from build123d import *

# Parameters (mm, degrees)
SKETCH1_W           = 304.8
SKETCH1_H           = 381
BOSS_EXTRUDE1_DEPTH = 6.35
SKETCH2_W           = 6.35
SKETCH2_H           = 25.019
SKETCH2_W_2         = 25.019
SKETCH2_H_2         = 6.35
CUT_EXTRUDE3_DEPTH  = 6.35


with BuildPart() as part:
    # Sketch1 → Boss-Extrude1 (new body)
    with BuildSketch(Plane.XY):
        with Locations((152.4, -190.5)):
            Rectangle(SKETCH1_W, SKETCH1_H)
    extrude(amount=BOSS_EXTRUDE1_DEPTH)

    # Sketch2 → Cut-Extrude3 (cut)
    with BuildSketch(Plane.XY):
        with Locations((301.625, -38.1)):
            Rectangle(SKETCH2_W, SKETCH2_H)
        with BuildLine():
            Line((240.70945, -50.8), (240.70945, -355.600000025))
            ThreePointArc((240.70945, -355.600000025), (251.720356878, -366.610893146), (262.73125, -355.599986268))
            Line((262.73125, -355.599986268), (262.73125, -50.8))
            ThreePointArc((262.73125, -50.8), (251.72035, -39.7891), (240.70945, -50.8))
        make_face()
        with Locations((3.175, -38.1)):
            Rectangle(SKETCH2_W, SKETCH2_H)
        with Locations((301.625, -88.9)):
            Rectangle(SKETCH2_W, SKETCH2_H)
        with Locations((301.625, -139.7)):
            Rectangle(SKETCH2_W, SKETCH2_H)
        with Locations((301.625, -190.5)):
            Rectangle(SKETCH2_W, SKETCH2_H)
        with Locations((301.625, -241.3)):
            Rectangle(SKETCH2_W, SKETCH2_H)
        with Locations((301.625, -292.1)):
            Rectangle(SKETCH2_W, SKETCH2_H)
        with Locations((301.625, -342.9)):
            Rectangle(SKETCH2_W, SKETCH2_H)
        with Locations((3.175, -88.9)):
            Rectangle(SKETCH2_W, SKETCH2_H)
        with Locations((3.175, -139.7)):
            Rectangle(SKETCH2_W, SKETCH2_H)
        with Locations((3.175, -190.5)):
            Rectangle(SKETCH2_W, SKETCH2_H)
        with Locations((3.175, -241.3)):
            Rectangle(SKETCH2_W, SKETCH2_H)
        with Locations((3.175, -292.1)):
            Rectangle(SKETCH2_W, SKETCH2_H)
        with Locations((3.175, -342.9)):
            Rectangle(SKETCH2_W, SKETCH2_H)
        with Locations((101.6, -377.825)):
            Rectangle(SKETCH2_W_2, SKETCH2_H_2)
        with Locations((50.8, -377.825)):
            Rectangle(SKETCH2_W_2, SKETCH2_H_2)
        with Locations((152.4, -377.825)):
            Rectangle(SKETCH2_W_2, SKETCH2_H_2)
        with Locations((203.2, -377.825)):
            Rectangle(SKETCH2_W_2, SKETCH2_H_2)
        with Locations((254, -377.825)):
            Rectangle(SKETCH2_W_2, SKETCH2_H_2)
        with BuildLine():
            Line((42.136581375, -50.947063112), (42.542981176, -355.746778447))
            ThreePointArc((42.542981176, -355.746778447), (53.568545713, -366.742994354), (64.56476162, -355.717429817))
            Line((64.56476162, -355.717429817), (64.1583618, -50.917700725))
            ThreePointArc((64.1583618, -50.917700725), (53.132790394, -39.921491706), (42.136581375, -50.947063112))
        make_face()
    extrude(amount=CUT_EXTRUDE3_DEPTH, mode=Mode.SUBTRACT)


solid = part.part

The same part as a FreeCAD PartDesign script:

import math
import FreeCAD as App
import Part
import Sketcher
from FreeCAD import Vector
Q = App.Units.Quantity

doc = App.newDocument("Part")
body = doc.addObject("PartDesign::Body", "Body")

sketch1 = doc.addObject("Sketcher::SketchObject", "Sketch")
body.addObject(sketch1)
sketch1.AttachmentSupport = (doc.XY_Plane, [""])
sketch1.MapMode = "FlatFace"
sketch1.addGeometry([
    Part.LineSegment(Vector(0, 0, 0), Vector(0, -381, 0)),
    Part.LineSegment(Vector(0, -381, 0), Vector(305, -381, 0)),
    Part.LineSegment(Vector(305, -381, 0), Vector(305, 0, 0)),
    Part.LineSegment(Vector(305, 0, 0), Vector(0, 0, 0)),
], False)
sketch1.addConstraint([
    Sketcher.Constraint("Coincident", 0, 2, 1, 1),
    Sketcher.Constraint("Coincident", 1, 2, 2, 1),
    Sketcher.Constraint("Coincident", 2, 2, 3, 1),
    Sketcher.Constraint("Coincident", 3, 2, 0, 1),
    Sketcher.Constraint("Vertical", 0),
    Sketcher.Constraint("Horizontal", 1),
    Sketcher.Constraint("Vertical", 2),
    Sketcher.Constraint("Horizontal", 3),
    Sketcher.Constraint("Coincident", 3, 2, -1, 1),
    Sketcher.Constraint("DistanceX", 1, 1, 1, 2, Q("12 in")),
    Sketcher.Constraint("DistanceY", 0, 2, 0, 1, Q("15 in")),
])
pad1 = doc.addObject("PartDesign::Pad", "Pad")
body.addObject(pad1)
pad1.Profile = sketch1
pad1.Length = Q("0.25 in")

sketch2 = doc.addObject("Sketcher::SketchObject", "Sketch001")
body.addObject(sketch2)
sketch2.AttachmentSupport = (doc.XY_Plane, [""])
sketch2.MapMode = "FlatFace"
sketch2.addGeometry([
    Part.LineSegment(Vector(298, -26, 0), Vector(298, -51, 0)),
    Part.LineSegment(Vector(298, -51, 0), Vector(305, -51, 0)),
    Part.LineSegment(Vector(305, -51, 0), Vector(305, -26, 0)),
    Part.LineSegment(Vector(305, -26, 0), Vector(298, -26, 0)),
    Part.LineSegment(Vector(241, -51, 0), Vector(241, -356, 0)),
    Part.ArcOfCircle(Part.Circle(Vector(252, -356, 0), Vector(0, 0, 1), 11), math.radians(-180), math.radians(0)),
    Part.LineSegment(Vector(263, -356, 0), Vector(263, -51, 0)),
    Part.ArcOfCircle(Part.Circle(Vector(252, -51, 0), Vector(0, 0, 1), 11), math.radians(0), math.radians(180)),
    Part.LineSegment(Vector(0, -26, 0), Vector(0, -51, 0)),
    Part.LineSegment(Vector(0, -51, 0), Vector(6, -51, 0)),
    Part.LineSegment(Vector(6, -51, 0), Vector(6, -26, 0)),
    Part.LineSegment(Vector(6, -26, 0), Vector(0, -26, 0)),
    Part.LineSegment(Vector(298, -76, 0), Vector(298, -101, 0)),
    Part.LineSegment(Vector(298, -101, 0), Vector(305, -101, 0)),
    Part.LineSegment(Vector(305, -101, 0), Vector(305, -76, 0)),
    Part.LineSegment(Vector(305, -76, 0), Vector(298, -76, 0)),
    Part.LineSegment(Vector(298, -127, 0), Vector(298, -152, 0)),
    Part.LineSegment(Vector(298, -152, 0), Vector(305, -152, 0)),
    Part.LineSegment(Vector(305, -152, 0), Vector(305, -127, 0)),
    Part.LineSegment(Vector(305, -127, 0), Vector(298, -127, 0)),
    Part.LineSegment(Vector(298, -178, 0), Vector(298, -203, 0)),
    Part.LineSegment(Vector(298, -203, 0), Vector(305, -203, 0)),
    Part.LineSegment(Vector(305, -203, 0), Vector(305, -178, 0)),
    Part.LineSegment(Vector(305, -178, 0), Vector(298, -178, 0)),
    Part.LineSegment(Vector(298, -229, 0), Vector(298, -254, 0)),
    Part.LineSegment(Vector(298, -254, 0), Vector(305, -254, 0)),
    Part.LineSegment(Vector(305, -254, 0), Vector(305, -229, 0)),
    Part.LineSegment(Vector(305, -229, 0), Vector(298, -229, 0)),
    Part.LineSegment(Vector(298, -280, 0), Vector(298, -305, 0)),
    Part.LineSegment(Vector(298, -305, 0), Vector(305, -305, 0)),
    Part.LineSegment(Vector(305, -305, 0), Vector(305, -280, 0)),
    Part.LineSegment(Vector(305, -280, 0), Vector(298, -280, 0)),
    Part.LineSegment(Vector(298, -330, 0), Vector(298, -355, 0)),
    Part.LineSegment(Vector(298, -355, 0), Vector(305, -355, 0)),
    Part.LineSegment(Vector(305, -355, 0), Vector(305, -330, 0)),
    Part.LineSegment(Vector(305, -330, 0), Vector(298, -330, 0)),
    Part.LineSegment(Vector(0, -76, 0), Vector(0, -101, 0)),
    Part.LineSegment(Vector(0, -101, 0), Vector(6, -101, 0)),
    Part.LineSegment(Vector(6, -101, 0), Vector(6, -76, 0)),
    Part.LineSegment(Vector(6, -76, 0), Vector(0, -76, 0)),
    Part.LineSegment(Vector(0, -127, 0), Vector(0, -152, 0)),
    Part.LineSegment(Vector(0, -152, 0), Vector(6, -152, 0)),
    Part.LineSegment(Vector(6, -152, 0), Vector(6, -127, 0)),
    Part.LineSegment(Vector(6, -127, 0), Vector(0, -127, 0)),
    Part.LineSegment(Vector(0, -178, 0), Vector(0, -203, 0)),
    Part.LineSegment(Vector(0, -203, 0), Vector(6, -203, 0)),
    Part.LineSegment(Vector(6, -203, 0), Vector(6, -178, 0)),
    Part.LineSegment(Vector(6, -178, 0), Vector(0, -178, 0)),
    Part.LineSegment(Vector(0, -229, 0), Vector(0, -254, 0)),
    Part.LineSegment(Vector(0, -254, 0), Vector(6, -254, 0)),
    Part.LineSegment(Vector(6, -254, 0), Vector(6, -229, 0)),
    Part.LineSegment(Vector(6, -229, 0), Vector(0, -229, 0)),
    Part.LineSegment(Vector(0, -280, 0), Vector(0, -305, 0)),
    Part.LineSegment(Vector(0, -305, 0), Vector(6, -305, 0)),
    Part.LineSegment(Vector(6, -305, 0), Vector(6, -280, 0)),
    Part.LineSegment(Vector(6, -280, 0), Vector(0, -280, 0)),
    Part.LineSegment(Vector(0, -330, 0), Vector(0, -355, 0)),
    Part.LineSegment(Vector(0, -355, 0), Vector(6, -355, 0)),
    Part.LineSegment(Vector(6, -355, 0), Vector(6, -330, 0)),
    Part.LineSegment(Vector(6, -330, 0), Vector(0, -330, 0)),
    Part.LineSegment(Vector(89, -375, 0), Vector(89, -381, 0)),
    Part.LineSegment(Vector(89, -381, 0), Vector(114, -381, 0)),
    Part.LineSegment(Vector(114, -381, 0), Vector(114, -375, 0)),
    Part.LineSegment(Vector(114, -375, 0), Vector(89, -375, 0)),
    Part.LineSegment(Vector(38, -375, 0), Vector(38, -381, 0)),
    Part.LineSegment(Vector(38, -381, 0), Vector(63, -381, 0)),
    Part.LineSegment(Vector(63, -381, 0), Vector(63, -375, 0)),
    Part.LineSegment(Vector(63, -375, 0), Vector(38, -375, 0)),
    Part.LineSegment(Vector(140, -375, 0), Vector(140, -381, 0)),
    Part.LineSegment(Vector(140, -381, 0), Vector(165, -381, 0)),
    Part.LineSegment(Vector(165, -381, 0), Vector(165, -375, 0)),
    Part.LineSegment(Vector(165, -375, 0), Vector(140, -375, 0)),
    Part.LineSegment(Vector(191, -375, 0), Vector(191, -381, 0)),
    Part.LineSegment(Vector(191, -381, 0), Vector(216, -381, 0)),
    Part.LineSegment(Vector(216, -381, 0), Vector(216, -375, 0)),
    Part.LineSegment(Vector(216, -375, 0), Vector(191, -375, 0)),
    Part.LineSegment(Vector(241, -375, 0), Vector(241, -381, 0)),
    Part.LineSegment(Vector(241, -381, 0), Vector(267, -381, 0)),
    Part.LineSegment(Vector(267, -381, 0), Vector(267, -375, 0)),
    Part.LineSegment(Vector(267, -375, 0), Vector(241, -375, 0)),
    Part.LineSegment(Vector(42, -51, 0), Vector(43, -356, 0)),
    Part.ArcOfCircle(Part.Circle(Vector(54, -356, 0), Vector(0, 0, 1), 11), math.radians(-180), math.radians(0)),
    Part.LineSegment(Vector(65, -356, 0), Vector(64, -51, 0)),
    Part.ArcOfCircle(Part.Circle(Vector(53, -51, 0), Vector(0, 0, 1), 11), math.radians(0), math.radians(180)),
], False)
sketch2.addConstraint([
    Sketcher.Constraint("Coincident", 0, 2, 1, 1),
    Sketcher.Constraint("Coincident", 1, 2, 2, 1),
    Sketcher.Constraint("Coincident", 2, 2, 3, 1),
    Sketcher.Constraint("Coincident", 3, 2, 0, 1),
    Sketcher.Constraint("Tangent", 4, 2, 5, 1),
    Sketcher.Constraint("Tangent", 5, 2, 6, 1),
    Sketcher.Constraint("Tangent", 6, 2, 7, 1),
    Sketcher.Constraint("Tangent", 7, 2, 4, 1),
    Sketcher.Constraint("Coincident", 8, 2, 9, 1),
    Sketcher.Constraint("Coincident", 9, 2, 10, 1),
    Sketcher.Constraint("Coincident", 10, 2, 11, 1),
    Sketcher.Constraint("Coincident", 11, 2, 8, 1),
    Sketcher.Constraint("Coincident", 12, 2, 13, 1),
    Sketcher.Constraint("Coincident", 13, 2, 14, 1),
    Sketcher.Constraint("Coincident", 14, 2, 15, 1),
    Sketcher.Constraint("Coincident", 15, 2, 12, 1),
    Sketcher.Constraint("Coincident", 16, 2, 17, 1),
    Sketcher.Constraint("Coincident", 17, 2, 18, 1),
    Sketcher.Constraint("Coincident", 18, 2, 19, 1),
    Sketcher.Constraint("Coincident", 19, 2, 16, 1),
    Sketcher.Constraint("Coincident", 20, 2, 21, 1),
    Sketcher.Constraint("Coincident", 21, 2, 22, 1),
    Sketcher.Constraint("Coincident", 22, 2, 23, 1),
    Sketcher.Constraint("Coincident", 23, 2, 20, 1),
    Sketcher.Constraint("Coincident", 24, 2, 25, 1),
    Sketcher.Constraint("Coincident", 25, 2, 26, 1),
    Sketcher.Constraint("Coincident", 26, 2, 27, 1),
    Sketcher.Constraint("Coincident", 27, 2, 24, 1),
    Sketcher.Constraint("Coincident", 28, 2, 29, 1),
    Sketcher.Constraint("Coincident", 29, 2, 30, 1),
    Sketcher.Constraint("Coincident", 30, 2, 31, 1),
    Sketcher.Constraint("Coincident", 31, 2, 28, 1),
    Sketcher.Constraint("Coincident", 32, 2, 33, 1),
    Sketcher.Constraint("Coincident", 33, 2, 34, 1),
    Sketcher.Constraint("Coincident", 34, 2, 35, 1),
    Sketcher.Constraint("Coincident", 35, 2, 32, 1),
    Sketcher.Constraint("Coincident", 36, 2, 37, 1),
    Sketcher.Constraint("Coincident", 37, 2, 38, 1),
    Sketcher.Constraint("Coincident", 38, 2, 39, 1),
    Sketcher.Constraint("Coincident", 39, 2, 36, 1),
    Sketcher.Constraint("Coincident", 40, 2, 41, 1),
    Sketcher.Constraint("Coincident", 41, 2, 42, 1),
    Sketcher.Constraint("Coincident", 42, 2, 43, 1),
    Sketcher.Constraint("Coincident", 43, 2, 40, 1),
    Sketcher.Constraint("Coincident", 44, 2, 45, 1),
    Sketcher.Constraint("Coincident", 45, 2, 46, 1),
    Sketcher.Constraint("Coincident", 46, 2, 47, 1),
    Sketcher.Constraint("Coincident", 47, 2, 44, 1),
    Sketcher.Constraint("Coincident", 48, 2, 49, 1),
    Sketcher.Constraint("Coincident", 49, 2, 50, 1),
    Sketcher.Constraint("Coincident", 50, 2, 51, 1),
    Sketcher.Constraint("Coincident", 51, 2, 48, 1),
    Sketcher.Constraint("Coincident", 52, 2, 53, 1),
    Sketcher.Constraint("Coincident", 53, 2, 54, 1),
    Sketcher.Constraint("Coincident", 54, 2, 55, 1),
    Sketcher.Constraint("Coincident", 55, 2, 52, 1),
    Sketcher.Constraint("Coincident", 56, 2, 57, 1),
    Sketcher.Constraint("Coincident", 57, 2, 58, 1),
    Sketcher.Constraint("Coincident", 58, 2, 59, 1),
    Sketcher.Constraint("Coincident", 59, 2, 56, 1),
    Sketcher.Constraint("Coincident", 60, 2, 61, 1),
    Sketcher.Constraint("Coincident", 61, 2, 62, 1),
    Sketcher.Constraint("Coincident", 62, 2, 63, 1),
    Sketcher.Constraint("Coincident", 63, 2, 60, 1),
    Sketcher.Constraint("Coincident", 64, 2, 65, 1),
    Sketcher.Constraint("Coincident", 65, 2, 66, 1),
    Sketcher.Constraint("Coincident", 66, 2, 67, 1),
    Sketcher.Constraint("Coincident", 67, 2, 64, 1),
    Sketcher.Constraint("Coincident", 68, 2, 69, 1),
    Sketcher.Constraint("Coincident", 69, 2, 70, 1),
    Sketcher.Constraint("Coincident", 70, 2, 71, 1),
    Sketcher.Constraint("Coincident", 71, 2, 68, 1),
    Sketcher.Constraint("Coincident", 72, 2, 73, 1),
    Sketcher.Constraint("Coincident", 73, 2, 74, 1),
    Sketcher.Constraint("Coincident", 74, 2, 75, 1),
    Sketcher.Constraint("Coincident", 75, 2, 72, 1),
    Sketcher.Constraint("Coincident", 76, 2, 77, 1),
    Sketcher.Constraint("Coincident", 77, 2, 78, 1),
    Sketcher.Constraint("Coincident", 78, 2, 79, 1),
    Sketcher.Constraint("Coincident", 79, 2, 76, 1),
    Sketcher.Constraint("Tangent", 80, 2, 81, 1),
    Sketcher.Constraint("Tangent", 81, 2, 82, 1),
    Sketcher.Constraint("Tangent", 82, 2, 83, 1),
    Sketcher.Constraint("Tangent", 83, 2, 80, 1),
    Sketcher.Constraint("Vertical", 0),
    Sketcher.Constraint("Horizontal", 1),
    Sketcher.Constraint("Vertical", 2),
    Sketcher.Constraint("Horizontal", 3),
    Sketcher.Constraint("Vertical", 4),
    Sketcher.Constraint("Vertical", 6),
    Sketcher.Constraint("Vertical", 8),
    Sketcher.Constraint("Horizontal", 9),
    Sketcher.Constraint("Vertical", 10),
    Sketcher.Constraint("Horizontal", 11),
    Sketcher.Constraint("Vertical", 12),
    Sketcher.Constraint("Horizontal", 13),
    Sketcher.Constraint("Vertical", 14),
    Sketcher.Constraint("Horizontal", 15),
    Sketcher.Constraint("Vertical", 16),
    Sketcher.Constraint("Horizontal", 17),
    Sketcher.Constraint("Vertical", 18),
    Sketcher.Constraint("Horizontal", 19),
    Sketcher.Constraint("Vertical", 20),
    Sketcher.Constraint("Horizontal", 21),
    Sketcher.Constraint("Vertical", 22),
    Sketcher.Constraint("Horizontal", 23),
    Sketcher.Constraint("Vertical", 24),
    Sketcher.Constraint("Horizontal", 25),
    Sketcher.Constraint("Vertical", 26),
    Sketcher.Constraint("Horizontal", 27),
    Sketcher.Constraint("Vertical", 28),
    Sketcher.Constraint("Horizontal", 29),
    Sketcher.Constraint("Vertical", 30),
    Sketcher.Constraint("Horizontal", 31),
    Sketcher.Constraint("Vertical", 32),
    Sketcher.Constraint("Horizontal", 33),
    Sketcher.Constraint("Vertical", 34),
    Sketcher.Constraint("Horizontal", 35),
    Sketcher.Constraint("Vertical", 36),
    Sketcher.Constraint("Horizontal", 37),
    Sketcher.Constraint("Vertical", 38),
    Sketcher.Constraint("Horizontal", 39),
    Sketcher.Constraint("Vertical", 40),
    Sketcher.Constraint("Horizontal", 41),
    Sketcher.Constraint("Vertical", 42),
    Sketcher.Constraint("Horizontal", 43),
    Sketcher.Constraint("Vertical", 44),
    Sketcher.Constraint("Horizontal", 45),
    Sketcher.Constraint("Vertical", 46),
    Sketcher.Constraint("Horizontal", 47),
    Sketcher.Constraint("Vertical", 48),
    Sketcher.Constraint("Horizontal", 49),
    Sketcher.Constraint("Vertical", 50),
    Sketcher.Constraint("Horizontal", 51),
    Sketcher.Constraint("Vertical", 52),
    Sketcher.Constraint("Horizontal", 53),
    Sketcher.Constraint("Vertical", 54),
    Sketcher.Constraint("Horizontal", 55),
    Sketcher.Constraint("Vertical", 56),
    Sketcher.Constraint("Horizontal", 57),
    Sketcher.Constraint("Vertical", 58),
    Sketcher.Constraint("Horizontal", 59),
    Sketcher.Constraint("Vertical", 60),
    Sketcher.Constraint("Horizontal", 61),
    Sketcher.Constraint("Vertical", 62),
    Sketcher.Constraint("Horizontal", 63),
    Sketcher.Constraint("Vertical", 64),
    Sketcher.Constraint("Horizontal", 65),
    Sketcher.Constraint("Vertical", 66),
    Sketcher.Constraint("Horizontal", 67),
    Sketcher.Constraint("Vertical", 68),
    Sketcher.Constraint("Horizontal", 69),
    Sketcher.Constraint("Vertical", 70),
    Sketcher.Constraint("Horizontal", 71),
    Sketcher.Constraint("Vertical", 72),
    Sketcher.Constraint("Horizontal", 73),
    Sketcher.Constraint("Vertical", 74),
    Sketcher.Constraint("Horizontal", 75),
    Sketcher.Constraint("Vertical", 76),
    Sketcher.Constraint("Horizontal", 77),
    Sketcher.Constraint("Vertical", 78),
    Sketcher.Constraint("Horizontal", 79),
    Sketcher.Constraint("Equal", 7, 81),
    Sketcher.Constraint("Equal", 81, 83),
    Sketcher.Constraint("PointOnObject", 8, 2, -2),
    Sketcher.Constraint("PointOnObject", 36, 2, -2),
    Sketcher.Constraint("PointOnObject", 40, 2, -2),
    Sketcher.Constraint("PointOnObject", 44, 2, -2),
    Sketcher.Constraint("PointOnObject", 48, 2, -2),
    Sketcher.Constraint("PointOnObject", 52, 2, -2),
    Sketcher.Constraint("PointOnObject", 56, 2, -2),
    Sketcher.Constraint("Horizontal", 1, 2, 8, 2),
    Sketcher.Constraint("Horizontal", 3, 2, 10, 2),
    Sketcher.Constraint("Horizontal", 13, 2, 36, 2),
    Sketcher.Constraint("Horizontal", 15, 2, 38, 2),
    Sketcher.Constraint("Horizontal", 17, 2, 40, 2),
    Sketcher.Constraint("Horizontal", 19, 2, 42, 2),
    Sketcher.Constraint("Horizontal", 21, 2, 44, 2),
    Sketcher.Constraint("Horizontal", 23, 2, 46, 2),
    Sketcher.Constraint("Horizontal", 25, 2, 48, 2),
    Sketcher.Constraint("Horizontal", 27, 2, 50, 2),
    Sketcher.Constraint("Horizontal", 29, 2, 52, 2),
    Sketcher.Constraint("Horizontal", 31, 2, 54, 2),
    Sketcher.Constraint("Horizontal", 33, 2, 56, 2),
    Sketcher.Constraint("Horizontal", 35, 2, 58, 2),
    Sketcher.Constraint("Horizontal", 61, 2, 64, 2),
    Sketcher.Constraint("Horizontal", 63, 2, 66, 2),
    Sketcher.Constraint("Horizontal", 65, 2, 68, 2),
    Sketcher.Constraint("Horizontal", 67, 2, 70, 2),
    Sketcher.Constraint("Horizontal", 69, 2, 72, 2),
    Sketcher.Constraint("Horizontal", 71, 2, 74, 2),
    Sketcher.Constraint("Horizontal", 73, 2, 76, 2),
    Sketcher.Constraint("Horizontal", 75, 2, 78, 2),
    Sketcher.Constraint("Vertical", 3, 2, 12, 2),
    Sketcher.Constraint("Vertical", 2, 2, 13, 2),
    Sketcher.Constraint("Vertical", 15, 2, 16, 2),
    Sketcher.Constraint("Vertical", 14, 2, 17, 2),
    Sketcher.Constraint("Vertical", 19, 2, 20, 2),
    Sketcher.Constraint("Vertical", 18, 2, 21, 2),
    Sketcher.Constraint("Vertical", 23, 2, 24, 2),
    Sketcher.Constraint("Vertical", 22, 2, 25, 2),
    Sketcher.Constraint("Vertical", 27, 2, 28, 2),
    Sketcher.Constraint("Vertical", 26, 2, 29, 2),
    Sketcher.Constraint("Vertical", 31, 2, 32, 2),
    Sketcher.Constraint("Vertical", 30, 2, 33, 2),
    Sketcher.Constraint("Vertical", 10, 2, 37, 2),
    Sketcher.Constraint("Vertical", 38, 2, 41, 2),
    Sketcher.Constraint("Vertical", 42, 2, 45, 2),
    Sketcher.Constraint("Vertical", 46, 2, 49, 2),
    Sketcher.Constraint("Vertical", 50, 2, 53, 2),
    Sketcher.Constraint("Vertical", 54, 2, 57, 2),
    Sketcher.Constraint("Equal", 3, 9),
    Sketcher.Constraint("Equal", 63, 65),
    Sketcher.Constraint("Equal", 67, 69),
    Sketcher.Constraint("Equal", 71, 73),
    Sketcher.Constraint("Equal", 75, 77),
    Sketcher.Constraint("Equal", 79, 0),
    Sketcher.Constraint("Equal", 10, 12),
    Sketcher.Constraint("Equal", 14, 16),
    Sketcher.Constraint("Equal", 18, 20),
    Sketcher.Constraint("Equal", 22, 24),
    Sketcher.Constraint("Equal", 26, 28),
    Sketcher.Constraint("Equal", 30, 32),
    Sketcher.Constraint("Equal", 59, 60),
    Sketcher.Constraint("DistanceY", 4, 2, 4, 1, Q("12 in")),
    Sketcher.Constraint("Distance", 82, Q("12 in")),
    Sketcher.Constraint("DistanceY", 7, 3, -1, 1, Q("2 in")),
    Sketcher.Constraint("DistanceX", -1, 1, 1, 2, Q("12 in")),
    Sketcher.Constraint("DistanceY", 60, 2, -1, 1, Q("15 in")),
    Sketcher.Constraint("DistanceX", 1, 1, 1, 2, Q("0.25 in")),
    Sketcher.Constraint("Radius", 5, Q("0.4335 in")),
    Sketcher.Constraint("DistanceX", 61, 1, 61, 2, Q("0.985 in")),
    Sketcher.Constraint("DistanceX", -1, 1, 5, 2, Q("10.34375 in")),
    Sketcher.Constraint("DistanceY", 0, 2, -1, 1, Q("1.9925 in")),
    Sketcher.Constraint("DistanceY", 12, 2, -1, 1, Q("3.9925 in")),
    Sketcher.Constraint("DistanceY", 16, 2, -1, 1, Q("5.9925 in")),
    Sketcher.Constraint("DistanceY", 20, 2, -1, 1, Q("7.9925 in")),
    Sketcher.Constraint("DistanceY", 24, 2, -1, 1, Q("9.9925 in")),
    Sketcher.Constraint("DistanceY", 28, 2, -1, 1, Q("11.9925 in")),
    Sketcher.Constraint("DistanceY", 32, 2, -1, 1, Q("13.9925 in")),
    Sketcher.Constraint("DistanceX", -1, 1, 60, 2, Q("3.5075 in")),
    Sketcher.Constraint("DistanceX", -1, 1, 64, 2, Q("1.5075 in")),
    Sketcher.Constraint("DistanceX", -1, 1, 68, 2, Q("5.5075 in")),
    Sketcher.Constraint("DistanceX", -1, 1, 72, 2, Q("7.5075 in")),
    Sketcher.Constraint("DistanceX", -1, 1, 76, 2, Q("9.5075 in")),
    Sketcher.Constraint("DistanceY", 82, 2, -1, 1, 50.917701),
    Sketcher.Constraint("DistanceX", -1, 1, 81, 3, 53.553871),
    Sketcher.Constraint("DistanceX", -1, 1, 83, 3, 53.147472),
])
pocket1 = doc.addObject("PartDesign::Pocket", "Pocket")
body.addObject(pocket1)
pocket1.Profile = sketch2
pocket1.Length = Q("0.25 in")
pocket1.Reversed = True

doc.recompute()
